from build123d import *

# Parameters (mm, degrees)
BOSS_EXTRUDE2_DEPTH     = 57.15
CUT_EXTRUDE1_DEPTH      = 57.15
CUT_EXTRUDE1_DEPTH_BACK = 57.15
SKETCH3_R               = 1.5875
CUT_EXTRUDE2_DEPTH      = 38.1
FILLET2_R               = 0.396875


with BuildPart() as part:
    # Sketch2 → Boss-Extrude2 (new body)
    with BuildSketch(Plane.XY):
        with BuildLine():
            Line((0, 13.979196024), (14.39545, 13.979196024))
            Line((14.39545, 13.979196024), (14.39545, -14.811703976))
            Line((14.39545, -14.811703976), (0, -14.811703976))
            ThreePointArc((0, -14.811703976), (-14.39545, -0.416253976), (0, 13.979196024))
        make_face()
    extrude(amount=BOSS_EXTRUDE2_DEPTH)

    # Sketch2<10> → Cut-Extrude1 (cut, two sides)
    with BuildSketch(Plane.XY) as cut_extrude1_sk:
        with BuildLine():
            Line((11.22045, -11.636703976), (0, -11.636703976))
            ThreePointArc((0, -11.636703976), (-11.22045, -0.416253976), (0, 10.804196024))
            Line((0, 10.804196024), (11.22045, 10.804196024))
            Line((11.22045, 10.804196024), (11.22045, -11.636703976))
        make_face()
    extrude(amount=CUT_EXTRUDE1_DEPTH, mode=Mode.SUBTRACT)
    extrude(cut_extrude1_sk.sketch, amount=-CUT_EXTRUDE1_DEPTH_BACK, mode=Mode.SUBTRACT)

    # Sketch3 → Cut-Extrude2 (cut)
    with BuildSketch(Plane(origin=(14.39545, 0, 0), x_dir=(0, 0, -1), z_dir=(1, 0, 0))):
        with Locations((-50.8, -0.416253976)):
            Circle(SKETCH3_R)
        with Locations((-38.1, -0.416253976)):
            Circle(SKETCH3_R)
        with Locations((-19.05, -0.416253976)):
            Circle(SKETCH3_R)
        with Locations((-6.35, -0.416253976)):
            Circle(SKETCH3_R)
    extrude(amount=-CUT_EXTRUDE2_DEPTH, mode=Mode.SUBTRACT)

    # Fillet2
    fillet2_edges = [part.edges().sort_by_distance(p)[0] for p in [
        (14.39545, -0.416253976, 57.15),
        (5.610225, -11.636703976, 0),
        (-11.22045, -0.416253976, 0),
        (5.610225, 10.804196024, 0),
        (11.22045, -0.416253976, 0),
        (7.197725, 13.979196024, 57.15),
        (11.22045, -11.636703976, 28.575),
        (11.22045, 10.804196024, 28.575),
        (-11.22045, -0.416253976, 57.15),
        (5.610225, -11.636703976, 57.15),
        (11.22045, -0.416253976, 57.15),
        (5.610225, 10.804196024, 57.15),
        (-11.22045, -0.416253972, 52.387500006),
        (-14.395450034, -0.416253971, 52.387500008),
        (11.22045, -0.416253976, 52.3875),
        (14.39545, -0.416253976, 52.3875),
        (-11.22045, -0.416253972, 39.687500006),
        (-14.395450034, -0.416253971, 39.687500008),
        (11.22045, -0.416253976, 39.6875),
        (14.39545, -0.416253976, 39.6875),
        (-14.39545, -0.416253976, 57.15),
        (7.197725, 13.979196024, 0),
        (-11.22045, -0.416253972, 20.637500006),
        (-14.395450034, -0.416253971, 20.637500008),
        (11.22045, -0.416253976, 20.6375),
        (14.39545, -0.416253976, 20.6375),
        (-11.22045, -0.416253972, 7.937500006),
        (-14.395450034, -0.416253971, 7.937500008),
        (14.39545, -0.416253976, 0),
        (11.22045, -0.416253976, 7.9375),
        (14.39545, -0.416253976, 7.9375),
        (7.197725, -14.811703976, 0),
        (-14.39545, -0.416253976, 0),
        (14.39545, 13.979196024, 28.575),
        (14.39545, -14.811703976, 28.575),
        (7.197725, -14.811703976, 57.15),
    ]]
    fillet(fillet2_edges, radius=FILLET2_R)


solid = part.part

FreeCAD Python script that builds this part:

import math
import FreeCAD as App
import Part
import Sketcher
Q = App.Units.Quantity

doc = App.newDocument("Part")
body = doc.addObject("PartDesign::Body", "Body")

# Sketch on XY plane
sketch1 = body.newObject("Sketcher::SketchObject", "Sketch")
sketch1.AttachmentSupport = (doc.getObject("XY_Plane"), [""])
sketch1.MapMode = "FlatFace"
sketch1.addGeometry(Part.LineSegment(App.Vector(14, 14, 0), App.Vector(0, 14, 0)), False)
sketch1.addGeometry(Part.ArcOfCircle(Part.Circle(App.Vector(0, 0, 0), App.Vector(0, 0, 1), 14), math.radians(90), math.radians(270)), False)
sketch1.addGeometry(Part.LineSegment(App.Vector(0, -15, 0), App.Vector(14, -15, 0)), False)
sketch1.addGeometry(Part.LineSegment(App.Vector(14, -15, 0), App.Vector(14, 14, 0)), False)
sketch1.addConstraint(Sketcher.Constraint("Tangent", 0, 2, 1, 1))
sketch1.addConstraint(Sketcher.Constraint("Tangent", 1, 2, 2, 1))
sketch1.addConstraint(Sketcher.Constraint("Coincident", 2, 2, 3, 1))
sketch1.addConstraint(Sketcher.Constraint("Coincident", 3, 2, 0, 1))
sketch1.addConstraint(Sketcher.Constraint("Horizontal", 0))
sketch1.addConstraint(Sketcher.Constraint("Horizontal", 2))
sketch1.addConstraint(Sketcher.Constraint("Vertical", 3))
sketch1.addConstraint(Sketcher.Constraint("PointOnObject", 1, 3, -2))
sketch1.addConstraint(Sketcher.Constraint("DistanceY", 3, 1, 3, 2, Q("1.1335 in")))
sketch1.addConstraint(Sketcher.Constraint("DistanceX", 0, 2, 0, 1, 14.39545))
sketch1.addConstraint(Sketcher.Constraint("DistanceY", 1, 3, -1, 1, 0.416254))
pad1 = body.newObject("PartDesign::Pad", "Pad")
pad1.Profile = sketch1
pad1.Length = Q("2.25 in")

# Sketch on XY plane
sketch2 = body.newObject("Sketcher::SketchObject", "Sketch001")
sketch2.AttachmentSupport = (doc.getObject("XY_Plane"), [""])
sketch2.MapMode = "FlatFace"
sketch2.addGeometry(Part.LineSegment(App.Vector(0, -12, 0), App.Vector(11, -12, 0)), False)
sketch2.addGeometry(Part.LineSegment(App.Vector(11, -12, 0), App.Vector(11, 11, 0)), False)
sketch2.addGeometry(Part.LineSegment(App.Vector(11, 11, 0), App.Vector(0, 11, 0)), False)
sketch2.addGeometry(Part.ArcOfCircle(Part.Circle(App.Vector(0, 0, 0), App.Vector(0, 0, 1), 11), math.radians(90), math.radians(270)), False)
sketch2.addConstraint(Sketcher.Constraint("Coincident", 0, 2, 1, 1))
sketch2.addConstraint(Sketcher.Constraint("Coincident", 1, 2, 2, 1))
sketch2.addConstraint(Sketcher.Constraint("Tangent", 2, 2, 3, 1))
sketch2.addConstraint(Sketcher.Constraint("Tangent", 3, 2, 0, 1))
sketch2.addConstraint(Sketcher.Constraint("Horizontal", 0))
sketch2.addConstraint(Sketcher.Constraint("Vertical", 1))
sketch2.addConstraint(Sketcher.Constraint("Horizontal", 2))
sketch2.addConstraint(Sketcher.Constraint("PointOnObject", 3, 3, -2))
sketch2.addConstraint(Sketcher.Constraint("DistanceY", 1, 1, 1, 2, Q("0.8835 in")))
sketch2.addConstraint(Sketcher.Constraint("DistanceX", 0, 1, 0, 2, 11.22045))
sketch2.addConstraint(Sketcher.Constraint("DistanceY", 3, 3, -1, 1, 0.416254))
pocket1 = body.newObject("PartDesign::Pocket", "Pocket")
pocket1.Profile = sketch2
pocket1.Type = "ThroughAll"
pocket1.Midplane = True

# Sketch on YZ plane
sketch3 = body.newObject("Sketcher::SketchObject", "Sketch002")
sketch3.AttachmentSupport = (doc.getObject("YZ_Plane"), [""])
sketch3.MapMode = "FlatFace"
sketch3.AttachmentOffset = App.Placement(App.Vector(0, 0, 14.39545), App.Rotation())
sketch3.addGeometry(Part.Circle(App.Vector(-0.4, 50.8, 0), App.Vector(0, 0, 1), 1.6), False)
sketch3.addGeometry(Part.Circle(App.Vector(-0.4, 38.1, 0), App.Vector(0, 0, 1), 1.6), False)
sketch3.addGeometry(Part.Circle(App.Vector(-0.4, 19.1, 0), App.Vector(0, 0, 1), 1.6), False)
sketch3.addGeometry(Part.Circle(App.Vector(-0.4, 6.3, 0), App.Vector(0, 0, 1), 1.6), False)
sketch3.addConstraint(Sketcher.Constraint("Equal", 0, 1))
sketch3.addConstraint(Sketcher.Constraint("Equal", 1, 2))
sketch3.addConstraint(Sketcher.Constraint("Equal", 2, 3))
sketch3.addConstraint(Sketcher.Constraint("Vertical", 0, 3, 1, 3))
sketch3.addConstraint(Sketcher.Constraint("Vertical", 1, 3, 2, 3))
sketch3.addConstraint(Sketcher.Constraint("Vertical", 2, 3, 3, 3))
sketch3.addConstraint(Sketcher.Constraint("Diameter", 0, Q("0.125 in")))
sketch3.addConstraint(Sketcher.Constraint("DistanceY", -1, 1, 0, 3, Q("2 in")))
sketch3.addConstraint(Sketcher.Constraint("DistanceY", -1, 1, 1, 3, Q("1.5 in")))
sketch3.addConstraint(Sketcher.Constraint("DistanceY", 3, 3, 2, 3, Q("0.5 in")))
sketch3.addConstraint(Sketcher.Constraint("DistanceY", -1, 1, 2, 3, Q("0.75 in")))
sketch3.addConstraint(Sketcher.Constraint("DistanceX", 0, 3, -1, 1, 0.416254))
pocket2 = body.newObject("PartDesign::Pocket", "Pocket001")
pocket2.Profile = sketch3
pocket2.Length = Q("1.5 in")
doc.recompute()

fillet = body.newObject("PartDesign::Fillet", "Fillet")
fillet.Base = (pocket2, ["Edge1"])
fillet.UseAllEdges = True
fillet.Radius = Q("0.015625 in")

doc.recompute()
